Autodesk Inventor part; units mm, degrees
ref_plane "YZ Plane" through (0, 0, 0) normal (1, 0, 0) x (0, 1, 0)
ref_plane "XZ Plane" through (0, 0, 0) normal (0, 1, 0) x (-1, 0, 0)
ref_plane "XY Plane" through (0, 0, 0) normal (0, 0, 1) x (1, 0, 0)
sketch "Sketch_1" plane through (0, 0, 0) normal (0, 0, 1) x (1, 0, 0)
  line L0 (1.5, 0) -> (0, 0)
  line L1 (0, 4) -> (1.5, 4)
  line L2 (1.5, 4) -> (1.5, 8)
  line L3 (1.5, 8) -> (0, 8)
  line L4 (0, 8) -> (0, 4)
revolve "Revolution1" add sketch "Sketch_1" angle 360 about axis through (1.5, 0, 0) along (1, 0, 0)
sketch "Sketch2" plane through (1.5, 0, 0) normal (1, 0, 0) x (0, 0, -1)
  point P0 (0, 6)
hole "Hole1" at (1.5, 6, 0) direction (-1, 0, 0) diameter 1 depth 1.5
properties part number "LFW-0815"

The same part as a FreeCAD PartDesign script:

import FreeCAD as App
import Part
import Sketcher

V = App.Vector
Q = App.Units.Quantity


def add_polygon(sketch, points):
    """Adds a closed chain of lines whose ends are joined by coincident constraints."""
    first, n = sketch.GeometryCount, len(points)
    for a, b in zip(points, points[1:] + points[:1]):
        sketch.addGeometry(Part.LineSegment(App.Vector(*a, 0), App.Vector(*b, 0)), False)
    for i in range(n):
        sketch.addConstraint(Sketcher.Constraint("Coincident", first + i, 2, first + (i + 1) % n, 1))

doc = App.newDocument("Part")
params = doc.addObject("Spreadsheet::Sheet", "Params")
for row, (alias, value) in enumerate([
    ("sketch1_height", "4 mm"),
    ("sketch1_width", "1.5 mm"),
    ("revolution_angle", "360 deg"),
    ("sketch2_diameter", "1 mm"),
    ("hole_diameter", "1 mm"),
    ("hole_depth", "1.5 mm"),
], start=1):
    params.set(f"A{row}", alias)
    params.set(f"B{row}", "=" + value)
    params.setAlias(f"B{row}", alias)

body = doc.addObject("PartDesign::Body", "Body")

sketch1 = body.newObject("Sketcher::SketchObject", "Sketch")
sketch1.AttachmentSupport = (doc.getObject("XY_Plane"), [""])
sketch1.MapMode = "FlatFace"
add_polygon(sketch1, [(0, 8), (0, 4), (1.5, 4), (1.5, 8)])
sketch1.addConstraint([
    Sketcher.Constraint("Vertical", 0),
    Sketcher.Constraint("Horizontal", 1),
    Sketcher.Constraint("Vertical", 2),
    Sketcher.Constraint("Horizontal", 3),
    Sketcher.Constraint("PointOnObject", 0, 2, -2),
    Sketcher.Constraint("DistanceY", 0, 2, 0, 1, Q("4 mm")),
    Sketcher.Constraint("DistanceX", 1, 1, 1, 2, Q("1.5 mm")),
    Sketcher.Constraint("DistanceY", -1, 1, 0, 2, Q("4 mm")),
])
sketch1.setExpression("Constraints[9]", "Params.sketch1_height")
sketch1.setExpression("Constraints[10]", "Params.sketch1_width")
revolution = body.newObject("PartDesign::Revolution", "Revolution")
revolution.Profile = sketch1
revolution.ReferenceAxis = (sketch1, ["H_Axis"])
revolution.setExpression("Angle", "Params.revolution_angle")

sketch2 = body.newObject("Sketcher::SketchObject", "Sketch001")
sketch2.AttachmentSupport = (doc.getObject("YZ_Plane"), [""])
sketch2.MapMode = "FlatFace"
sketch2.AttachmentOffset = App.Placement(V(0, 0, 1.5), App.Rotation())
sketch2.addGeometry(Part.Circle(V(6, 0, 0), V(0, 0, 1), 0.5), False)
sketch2.addConstraint([
    Sketcher.Constraint("PointOnObject", 0, 3, -1),
    Sketcher.Constraint("Diameter", 0, Q("1 mm")),
    Sketcher.Constraint("DistanceX", -1, 1, 0, 3, Q("6 mm")),
])
sketch2.setExpression("Constraints[1]", "Params.sketch2_diameter")
doc.recompute()
hole = body.newObject("PartDesign::Hole", "Hole")
hole.Profile = sketch2
hole.ThreadType = "None"
hole.setExpression("Diameter", "Params.hole_diameter")
hole.DepthType = "Dimension"
hole.setExpression("Depth", "Params.hole_depth")
hole.DrillPoint = "Flat"

doc.recompute()
